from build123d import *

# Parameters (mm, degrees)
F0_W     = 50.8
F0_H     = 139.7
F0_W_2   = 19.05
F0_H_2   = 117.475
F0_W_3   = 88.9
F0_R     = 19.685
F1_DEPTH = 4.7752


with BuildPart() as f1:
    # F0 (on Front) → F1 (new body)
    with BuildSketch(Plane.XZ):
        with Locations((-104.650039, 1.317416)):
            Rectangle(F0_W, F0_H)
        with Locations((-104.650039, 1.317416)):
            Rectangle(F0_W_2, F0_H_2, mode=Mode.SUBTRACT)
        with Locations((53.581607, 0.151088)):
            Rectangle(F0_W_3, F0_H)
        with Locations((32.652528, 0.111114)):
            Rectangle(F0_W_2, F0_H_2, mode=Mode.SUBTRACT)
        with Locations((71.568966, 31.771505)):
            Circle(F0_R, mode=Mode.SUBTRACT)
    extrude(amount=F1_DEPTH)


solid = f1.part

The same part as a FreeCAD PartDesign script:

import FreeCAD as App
import Part
import Sketcher
from FreeCAD import Vector
Q = App.Units.Quantity

doc = App.newDocument("Part")
body = doc.addObject("PartDesign::Body", "Body")
body.AllowCompound = True

# Sketch on XZ plane
sketch1 = body.newObject("Sketcher::SketchObject", "Sketch")
sketch1.AttachmentSupport = (doc.getObject("XZ_Plane"), [""])
sketch1.MapMode = "FlatFace"
sketch1.addGeometry([
    Part.LineSegment(Vector(-130, 71, 0), Vector(-130, -69, 0)),  # 0
    Part.LineSegment(Vector(-130, -69, 0), Vector(-79, -69, 0)),  # 1
    Part.LineSegment(Vector(-79, -69, 0), Vector(-79, 71, 0)),  # 2
    Part.LineSegment(Vector(-79, 71, 0), Vector(-130, 71, 0)),  # 3
    Part.LineSegment(Vector(-95, -57, 0), Vector(-114, -57, 0)),  # 4
    Part.LineSegment(Vector(-114, -57, 0), Vector(-114, 60, 0)),  # 5
    Part.LineSegment(Vector(-114, 60, 0), Vector(-95, 60, 0)),  # 6
    Part.LineSegment(Vector(-95, 60, 0), Vector(-95, -57, 0)),  # 7
    Part.LineSegment(Vector(9, 70, 0), Vector(9, -70, 0)),  # 8
    Part.LineSegment(Vector(9, -70, 0), Vector(98, -70, 0)),  # 9
    Part.LineSegment(Vector(98, -70, 0), Vector(98, 70, 0)),  # 10
    Part.LineSegment(Vector(98, 70, 0), Vector(9, 70, 0)),  # 11
    Part.LineSegment(Vector(42, -59, 0), Vector(23, -59, 0)),  # 12
    Part.LineSegment(Vector(23, -59, 0), Vector(23, 59, 0)),  # 13
    Part.LineSegment(Vector(23, 59, 0), Vector(42, 59, 0)),  # 14
    Part.LineSegment(Vector(42, 59, 0), Vector(42, -59, 0)),  # 15
    Part.Circle(Vector(72, 32, 0), Vector(0, 0, 1), 20),  # 16
], False)
sketch1.addConstraint([
    Sketcher.Constraint("Coincident", 0, 2, 1, 1),
    Sketcher.Constraint("Coincident", 1, 2, 2, 1),
    Sketcher.Constraint("Coincident", 2, 2, 3, 1),
    Sketcher.Constraint("Coincident", 3, 2, 0, 1),
    Sketcher.Constraint("Coincident", 4, 2, 5, 1),
    Sketcher.Constraint("Coincident", 5, 2, 6, 1),
    Sketcher.Constraint("Coincident", 6, 2, 7, 1),
    Sketcher.Constraint("Coincident", 7, 2, 4, 1),
    Sketcher.Constraint("Coincident", 8, 2, 9, 1),
    Sketcher.Constraint("Coincident", 9, 2, 10, 1),
    Sketcher.Constraint("Coincident", 10, 2, 11, 1),
    Sketcher.Constraint("Coincident", 11, 2, 8, 1),
    Sketcher.Constraint("Coincident", 12, 2, 13, 1),
    Sketcher.Constraint("Coincident", 13, 2, 14, 1),
    Sketcher.Constraint("Coincident", 14, 2, 15, 1),
    Sketcher.Constraint("Coincident", 15, 2, 12, 1),
    Sketcher.Constraint("Vertical", 0),
    Sketcher.Constraint("Horizontal", 1),
    Sketcher.Constraint("Vertical", 2),
    Sketcher.Constraint("Horizontal", 3),
    Sketcher.Constraint("Horizontal", 4),
    Sketcher.Constraint("Vertical", 5),
    Sketcher.Constraint("Horizontal", 6),
    Sketcher.Constraint("Vertical", 7),
    Sketcher.Constraint("Vertical", 8),
    Sketcher.Constraint("Horizontal", 9),
    Sketcher.Constraint("Vertical", 10),
    Sketcher.Constraint("Horizontal", 11),
    Sketcher.Constraint("Horizontal", 12),
    Sketcher.Constraint("Vertical", 13),
    Sketcher.Constraint("Horizontal", 14),
    Sketcher.Constraint("Vertical", 15),
    Sketcher.Constraint("Equal", 6, 12),
    Sketcher.Constraint("Equal", 2, 8),
    Sketcher.Constraint("Equal", 7, 13),
    Sketcher.Constraint("Diameter", 16, Q("1.55 in")),
    Sketcher.Constraint("DistanceX", 1, 1, 1, 2, Q("2 in")),
    Sketcher.Constraint("DistanceX", 9, 1, 9, 2, Q("3.5 in")),
    Sketcher.Constraint("DistanceY", 0, 2, 0, 1, Q("5.5 in")),
    Sketcher.Constraint("DistanceX", 4, 2, 4, 1, Q("0.75 in")),
    Sketcher.Constraint("DistanceY", 5, 1, 5, 2, Q("4.625 in")),
    Sketcher.Constraint("DistanceX", 0, 2, 4, 2, Q("0.625 in")),
    Sketcher.Constraint("DistanceY", 0, 2, 4, 2, Q("0.4375 in")),
    Sketcher.Constraint("DistanceY", 1, 2, 12, 2, Q("9.906198 mm")),
    Sketcher.Constraint("DistanceX", 0, 2, -1, 1, Q("130.050039 mm")),
    Sketcher.Constraint("DistanceX", -1, 1, 12, 2, Q("23.127528 mm")),
    Sketcher.Constraint("DistanceY", 0, 2, 16, 3, Q("100.304089 mm")),
    Sketcher.Constraint("DistanceY", 8, 2, 1, 2, Q("1.166328 mm")),
    Sketcher.Constraint("DistanceX", 8, 2, 16, 3, Q("62.437359 mm")),
    Sketcher.Constraint("DistanceX", 8, 2, 12, 2, Q("13.995921 mm")),
    Sketcher.Constraint("DistanceY", -1, 1, 16, 3, Q("31.771505 mm")),
])
pad1 = body.newObject("PartDesign::Pad", "Pad")
pad1.Profile = sketch1
pad1.Length = Q("0.188 in")

doc.recompute()
